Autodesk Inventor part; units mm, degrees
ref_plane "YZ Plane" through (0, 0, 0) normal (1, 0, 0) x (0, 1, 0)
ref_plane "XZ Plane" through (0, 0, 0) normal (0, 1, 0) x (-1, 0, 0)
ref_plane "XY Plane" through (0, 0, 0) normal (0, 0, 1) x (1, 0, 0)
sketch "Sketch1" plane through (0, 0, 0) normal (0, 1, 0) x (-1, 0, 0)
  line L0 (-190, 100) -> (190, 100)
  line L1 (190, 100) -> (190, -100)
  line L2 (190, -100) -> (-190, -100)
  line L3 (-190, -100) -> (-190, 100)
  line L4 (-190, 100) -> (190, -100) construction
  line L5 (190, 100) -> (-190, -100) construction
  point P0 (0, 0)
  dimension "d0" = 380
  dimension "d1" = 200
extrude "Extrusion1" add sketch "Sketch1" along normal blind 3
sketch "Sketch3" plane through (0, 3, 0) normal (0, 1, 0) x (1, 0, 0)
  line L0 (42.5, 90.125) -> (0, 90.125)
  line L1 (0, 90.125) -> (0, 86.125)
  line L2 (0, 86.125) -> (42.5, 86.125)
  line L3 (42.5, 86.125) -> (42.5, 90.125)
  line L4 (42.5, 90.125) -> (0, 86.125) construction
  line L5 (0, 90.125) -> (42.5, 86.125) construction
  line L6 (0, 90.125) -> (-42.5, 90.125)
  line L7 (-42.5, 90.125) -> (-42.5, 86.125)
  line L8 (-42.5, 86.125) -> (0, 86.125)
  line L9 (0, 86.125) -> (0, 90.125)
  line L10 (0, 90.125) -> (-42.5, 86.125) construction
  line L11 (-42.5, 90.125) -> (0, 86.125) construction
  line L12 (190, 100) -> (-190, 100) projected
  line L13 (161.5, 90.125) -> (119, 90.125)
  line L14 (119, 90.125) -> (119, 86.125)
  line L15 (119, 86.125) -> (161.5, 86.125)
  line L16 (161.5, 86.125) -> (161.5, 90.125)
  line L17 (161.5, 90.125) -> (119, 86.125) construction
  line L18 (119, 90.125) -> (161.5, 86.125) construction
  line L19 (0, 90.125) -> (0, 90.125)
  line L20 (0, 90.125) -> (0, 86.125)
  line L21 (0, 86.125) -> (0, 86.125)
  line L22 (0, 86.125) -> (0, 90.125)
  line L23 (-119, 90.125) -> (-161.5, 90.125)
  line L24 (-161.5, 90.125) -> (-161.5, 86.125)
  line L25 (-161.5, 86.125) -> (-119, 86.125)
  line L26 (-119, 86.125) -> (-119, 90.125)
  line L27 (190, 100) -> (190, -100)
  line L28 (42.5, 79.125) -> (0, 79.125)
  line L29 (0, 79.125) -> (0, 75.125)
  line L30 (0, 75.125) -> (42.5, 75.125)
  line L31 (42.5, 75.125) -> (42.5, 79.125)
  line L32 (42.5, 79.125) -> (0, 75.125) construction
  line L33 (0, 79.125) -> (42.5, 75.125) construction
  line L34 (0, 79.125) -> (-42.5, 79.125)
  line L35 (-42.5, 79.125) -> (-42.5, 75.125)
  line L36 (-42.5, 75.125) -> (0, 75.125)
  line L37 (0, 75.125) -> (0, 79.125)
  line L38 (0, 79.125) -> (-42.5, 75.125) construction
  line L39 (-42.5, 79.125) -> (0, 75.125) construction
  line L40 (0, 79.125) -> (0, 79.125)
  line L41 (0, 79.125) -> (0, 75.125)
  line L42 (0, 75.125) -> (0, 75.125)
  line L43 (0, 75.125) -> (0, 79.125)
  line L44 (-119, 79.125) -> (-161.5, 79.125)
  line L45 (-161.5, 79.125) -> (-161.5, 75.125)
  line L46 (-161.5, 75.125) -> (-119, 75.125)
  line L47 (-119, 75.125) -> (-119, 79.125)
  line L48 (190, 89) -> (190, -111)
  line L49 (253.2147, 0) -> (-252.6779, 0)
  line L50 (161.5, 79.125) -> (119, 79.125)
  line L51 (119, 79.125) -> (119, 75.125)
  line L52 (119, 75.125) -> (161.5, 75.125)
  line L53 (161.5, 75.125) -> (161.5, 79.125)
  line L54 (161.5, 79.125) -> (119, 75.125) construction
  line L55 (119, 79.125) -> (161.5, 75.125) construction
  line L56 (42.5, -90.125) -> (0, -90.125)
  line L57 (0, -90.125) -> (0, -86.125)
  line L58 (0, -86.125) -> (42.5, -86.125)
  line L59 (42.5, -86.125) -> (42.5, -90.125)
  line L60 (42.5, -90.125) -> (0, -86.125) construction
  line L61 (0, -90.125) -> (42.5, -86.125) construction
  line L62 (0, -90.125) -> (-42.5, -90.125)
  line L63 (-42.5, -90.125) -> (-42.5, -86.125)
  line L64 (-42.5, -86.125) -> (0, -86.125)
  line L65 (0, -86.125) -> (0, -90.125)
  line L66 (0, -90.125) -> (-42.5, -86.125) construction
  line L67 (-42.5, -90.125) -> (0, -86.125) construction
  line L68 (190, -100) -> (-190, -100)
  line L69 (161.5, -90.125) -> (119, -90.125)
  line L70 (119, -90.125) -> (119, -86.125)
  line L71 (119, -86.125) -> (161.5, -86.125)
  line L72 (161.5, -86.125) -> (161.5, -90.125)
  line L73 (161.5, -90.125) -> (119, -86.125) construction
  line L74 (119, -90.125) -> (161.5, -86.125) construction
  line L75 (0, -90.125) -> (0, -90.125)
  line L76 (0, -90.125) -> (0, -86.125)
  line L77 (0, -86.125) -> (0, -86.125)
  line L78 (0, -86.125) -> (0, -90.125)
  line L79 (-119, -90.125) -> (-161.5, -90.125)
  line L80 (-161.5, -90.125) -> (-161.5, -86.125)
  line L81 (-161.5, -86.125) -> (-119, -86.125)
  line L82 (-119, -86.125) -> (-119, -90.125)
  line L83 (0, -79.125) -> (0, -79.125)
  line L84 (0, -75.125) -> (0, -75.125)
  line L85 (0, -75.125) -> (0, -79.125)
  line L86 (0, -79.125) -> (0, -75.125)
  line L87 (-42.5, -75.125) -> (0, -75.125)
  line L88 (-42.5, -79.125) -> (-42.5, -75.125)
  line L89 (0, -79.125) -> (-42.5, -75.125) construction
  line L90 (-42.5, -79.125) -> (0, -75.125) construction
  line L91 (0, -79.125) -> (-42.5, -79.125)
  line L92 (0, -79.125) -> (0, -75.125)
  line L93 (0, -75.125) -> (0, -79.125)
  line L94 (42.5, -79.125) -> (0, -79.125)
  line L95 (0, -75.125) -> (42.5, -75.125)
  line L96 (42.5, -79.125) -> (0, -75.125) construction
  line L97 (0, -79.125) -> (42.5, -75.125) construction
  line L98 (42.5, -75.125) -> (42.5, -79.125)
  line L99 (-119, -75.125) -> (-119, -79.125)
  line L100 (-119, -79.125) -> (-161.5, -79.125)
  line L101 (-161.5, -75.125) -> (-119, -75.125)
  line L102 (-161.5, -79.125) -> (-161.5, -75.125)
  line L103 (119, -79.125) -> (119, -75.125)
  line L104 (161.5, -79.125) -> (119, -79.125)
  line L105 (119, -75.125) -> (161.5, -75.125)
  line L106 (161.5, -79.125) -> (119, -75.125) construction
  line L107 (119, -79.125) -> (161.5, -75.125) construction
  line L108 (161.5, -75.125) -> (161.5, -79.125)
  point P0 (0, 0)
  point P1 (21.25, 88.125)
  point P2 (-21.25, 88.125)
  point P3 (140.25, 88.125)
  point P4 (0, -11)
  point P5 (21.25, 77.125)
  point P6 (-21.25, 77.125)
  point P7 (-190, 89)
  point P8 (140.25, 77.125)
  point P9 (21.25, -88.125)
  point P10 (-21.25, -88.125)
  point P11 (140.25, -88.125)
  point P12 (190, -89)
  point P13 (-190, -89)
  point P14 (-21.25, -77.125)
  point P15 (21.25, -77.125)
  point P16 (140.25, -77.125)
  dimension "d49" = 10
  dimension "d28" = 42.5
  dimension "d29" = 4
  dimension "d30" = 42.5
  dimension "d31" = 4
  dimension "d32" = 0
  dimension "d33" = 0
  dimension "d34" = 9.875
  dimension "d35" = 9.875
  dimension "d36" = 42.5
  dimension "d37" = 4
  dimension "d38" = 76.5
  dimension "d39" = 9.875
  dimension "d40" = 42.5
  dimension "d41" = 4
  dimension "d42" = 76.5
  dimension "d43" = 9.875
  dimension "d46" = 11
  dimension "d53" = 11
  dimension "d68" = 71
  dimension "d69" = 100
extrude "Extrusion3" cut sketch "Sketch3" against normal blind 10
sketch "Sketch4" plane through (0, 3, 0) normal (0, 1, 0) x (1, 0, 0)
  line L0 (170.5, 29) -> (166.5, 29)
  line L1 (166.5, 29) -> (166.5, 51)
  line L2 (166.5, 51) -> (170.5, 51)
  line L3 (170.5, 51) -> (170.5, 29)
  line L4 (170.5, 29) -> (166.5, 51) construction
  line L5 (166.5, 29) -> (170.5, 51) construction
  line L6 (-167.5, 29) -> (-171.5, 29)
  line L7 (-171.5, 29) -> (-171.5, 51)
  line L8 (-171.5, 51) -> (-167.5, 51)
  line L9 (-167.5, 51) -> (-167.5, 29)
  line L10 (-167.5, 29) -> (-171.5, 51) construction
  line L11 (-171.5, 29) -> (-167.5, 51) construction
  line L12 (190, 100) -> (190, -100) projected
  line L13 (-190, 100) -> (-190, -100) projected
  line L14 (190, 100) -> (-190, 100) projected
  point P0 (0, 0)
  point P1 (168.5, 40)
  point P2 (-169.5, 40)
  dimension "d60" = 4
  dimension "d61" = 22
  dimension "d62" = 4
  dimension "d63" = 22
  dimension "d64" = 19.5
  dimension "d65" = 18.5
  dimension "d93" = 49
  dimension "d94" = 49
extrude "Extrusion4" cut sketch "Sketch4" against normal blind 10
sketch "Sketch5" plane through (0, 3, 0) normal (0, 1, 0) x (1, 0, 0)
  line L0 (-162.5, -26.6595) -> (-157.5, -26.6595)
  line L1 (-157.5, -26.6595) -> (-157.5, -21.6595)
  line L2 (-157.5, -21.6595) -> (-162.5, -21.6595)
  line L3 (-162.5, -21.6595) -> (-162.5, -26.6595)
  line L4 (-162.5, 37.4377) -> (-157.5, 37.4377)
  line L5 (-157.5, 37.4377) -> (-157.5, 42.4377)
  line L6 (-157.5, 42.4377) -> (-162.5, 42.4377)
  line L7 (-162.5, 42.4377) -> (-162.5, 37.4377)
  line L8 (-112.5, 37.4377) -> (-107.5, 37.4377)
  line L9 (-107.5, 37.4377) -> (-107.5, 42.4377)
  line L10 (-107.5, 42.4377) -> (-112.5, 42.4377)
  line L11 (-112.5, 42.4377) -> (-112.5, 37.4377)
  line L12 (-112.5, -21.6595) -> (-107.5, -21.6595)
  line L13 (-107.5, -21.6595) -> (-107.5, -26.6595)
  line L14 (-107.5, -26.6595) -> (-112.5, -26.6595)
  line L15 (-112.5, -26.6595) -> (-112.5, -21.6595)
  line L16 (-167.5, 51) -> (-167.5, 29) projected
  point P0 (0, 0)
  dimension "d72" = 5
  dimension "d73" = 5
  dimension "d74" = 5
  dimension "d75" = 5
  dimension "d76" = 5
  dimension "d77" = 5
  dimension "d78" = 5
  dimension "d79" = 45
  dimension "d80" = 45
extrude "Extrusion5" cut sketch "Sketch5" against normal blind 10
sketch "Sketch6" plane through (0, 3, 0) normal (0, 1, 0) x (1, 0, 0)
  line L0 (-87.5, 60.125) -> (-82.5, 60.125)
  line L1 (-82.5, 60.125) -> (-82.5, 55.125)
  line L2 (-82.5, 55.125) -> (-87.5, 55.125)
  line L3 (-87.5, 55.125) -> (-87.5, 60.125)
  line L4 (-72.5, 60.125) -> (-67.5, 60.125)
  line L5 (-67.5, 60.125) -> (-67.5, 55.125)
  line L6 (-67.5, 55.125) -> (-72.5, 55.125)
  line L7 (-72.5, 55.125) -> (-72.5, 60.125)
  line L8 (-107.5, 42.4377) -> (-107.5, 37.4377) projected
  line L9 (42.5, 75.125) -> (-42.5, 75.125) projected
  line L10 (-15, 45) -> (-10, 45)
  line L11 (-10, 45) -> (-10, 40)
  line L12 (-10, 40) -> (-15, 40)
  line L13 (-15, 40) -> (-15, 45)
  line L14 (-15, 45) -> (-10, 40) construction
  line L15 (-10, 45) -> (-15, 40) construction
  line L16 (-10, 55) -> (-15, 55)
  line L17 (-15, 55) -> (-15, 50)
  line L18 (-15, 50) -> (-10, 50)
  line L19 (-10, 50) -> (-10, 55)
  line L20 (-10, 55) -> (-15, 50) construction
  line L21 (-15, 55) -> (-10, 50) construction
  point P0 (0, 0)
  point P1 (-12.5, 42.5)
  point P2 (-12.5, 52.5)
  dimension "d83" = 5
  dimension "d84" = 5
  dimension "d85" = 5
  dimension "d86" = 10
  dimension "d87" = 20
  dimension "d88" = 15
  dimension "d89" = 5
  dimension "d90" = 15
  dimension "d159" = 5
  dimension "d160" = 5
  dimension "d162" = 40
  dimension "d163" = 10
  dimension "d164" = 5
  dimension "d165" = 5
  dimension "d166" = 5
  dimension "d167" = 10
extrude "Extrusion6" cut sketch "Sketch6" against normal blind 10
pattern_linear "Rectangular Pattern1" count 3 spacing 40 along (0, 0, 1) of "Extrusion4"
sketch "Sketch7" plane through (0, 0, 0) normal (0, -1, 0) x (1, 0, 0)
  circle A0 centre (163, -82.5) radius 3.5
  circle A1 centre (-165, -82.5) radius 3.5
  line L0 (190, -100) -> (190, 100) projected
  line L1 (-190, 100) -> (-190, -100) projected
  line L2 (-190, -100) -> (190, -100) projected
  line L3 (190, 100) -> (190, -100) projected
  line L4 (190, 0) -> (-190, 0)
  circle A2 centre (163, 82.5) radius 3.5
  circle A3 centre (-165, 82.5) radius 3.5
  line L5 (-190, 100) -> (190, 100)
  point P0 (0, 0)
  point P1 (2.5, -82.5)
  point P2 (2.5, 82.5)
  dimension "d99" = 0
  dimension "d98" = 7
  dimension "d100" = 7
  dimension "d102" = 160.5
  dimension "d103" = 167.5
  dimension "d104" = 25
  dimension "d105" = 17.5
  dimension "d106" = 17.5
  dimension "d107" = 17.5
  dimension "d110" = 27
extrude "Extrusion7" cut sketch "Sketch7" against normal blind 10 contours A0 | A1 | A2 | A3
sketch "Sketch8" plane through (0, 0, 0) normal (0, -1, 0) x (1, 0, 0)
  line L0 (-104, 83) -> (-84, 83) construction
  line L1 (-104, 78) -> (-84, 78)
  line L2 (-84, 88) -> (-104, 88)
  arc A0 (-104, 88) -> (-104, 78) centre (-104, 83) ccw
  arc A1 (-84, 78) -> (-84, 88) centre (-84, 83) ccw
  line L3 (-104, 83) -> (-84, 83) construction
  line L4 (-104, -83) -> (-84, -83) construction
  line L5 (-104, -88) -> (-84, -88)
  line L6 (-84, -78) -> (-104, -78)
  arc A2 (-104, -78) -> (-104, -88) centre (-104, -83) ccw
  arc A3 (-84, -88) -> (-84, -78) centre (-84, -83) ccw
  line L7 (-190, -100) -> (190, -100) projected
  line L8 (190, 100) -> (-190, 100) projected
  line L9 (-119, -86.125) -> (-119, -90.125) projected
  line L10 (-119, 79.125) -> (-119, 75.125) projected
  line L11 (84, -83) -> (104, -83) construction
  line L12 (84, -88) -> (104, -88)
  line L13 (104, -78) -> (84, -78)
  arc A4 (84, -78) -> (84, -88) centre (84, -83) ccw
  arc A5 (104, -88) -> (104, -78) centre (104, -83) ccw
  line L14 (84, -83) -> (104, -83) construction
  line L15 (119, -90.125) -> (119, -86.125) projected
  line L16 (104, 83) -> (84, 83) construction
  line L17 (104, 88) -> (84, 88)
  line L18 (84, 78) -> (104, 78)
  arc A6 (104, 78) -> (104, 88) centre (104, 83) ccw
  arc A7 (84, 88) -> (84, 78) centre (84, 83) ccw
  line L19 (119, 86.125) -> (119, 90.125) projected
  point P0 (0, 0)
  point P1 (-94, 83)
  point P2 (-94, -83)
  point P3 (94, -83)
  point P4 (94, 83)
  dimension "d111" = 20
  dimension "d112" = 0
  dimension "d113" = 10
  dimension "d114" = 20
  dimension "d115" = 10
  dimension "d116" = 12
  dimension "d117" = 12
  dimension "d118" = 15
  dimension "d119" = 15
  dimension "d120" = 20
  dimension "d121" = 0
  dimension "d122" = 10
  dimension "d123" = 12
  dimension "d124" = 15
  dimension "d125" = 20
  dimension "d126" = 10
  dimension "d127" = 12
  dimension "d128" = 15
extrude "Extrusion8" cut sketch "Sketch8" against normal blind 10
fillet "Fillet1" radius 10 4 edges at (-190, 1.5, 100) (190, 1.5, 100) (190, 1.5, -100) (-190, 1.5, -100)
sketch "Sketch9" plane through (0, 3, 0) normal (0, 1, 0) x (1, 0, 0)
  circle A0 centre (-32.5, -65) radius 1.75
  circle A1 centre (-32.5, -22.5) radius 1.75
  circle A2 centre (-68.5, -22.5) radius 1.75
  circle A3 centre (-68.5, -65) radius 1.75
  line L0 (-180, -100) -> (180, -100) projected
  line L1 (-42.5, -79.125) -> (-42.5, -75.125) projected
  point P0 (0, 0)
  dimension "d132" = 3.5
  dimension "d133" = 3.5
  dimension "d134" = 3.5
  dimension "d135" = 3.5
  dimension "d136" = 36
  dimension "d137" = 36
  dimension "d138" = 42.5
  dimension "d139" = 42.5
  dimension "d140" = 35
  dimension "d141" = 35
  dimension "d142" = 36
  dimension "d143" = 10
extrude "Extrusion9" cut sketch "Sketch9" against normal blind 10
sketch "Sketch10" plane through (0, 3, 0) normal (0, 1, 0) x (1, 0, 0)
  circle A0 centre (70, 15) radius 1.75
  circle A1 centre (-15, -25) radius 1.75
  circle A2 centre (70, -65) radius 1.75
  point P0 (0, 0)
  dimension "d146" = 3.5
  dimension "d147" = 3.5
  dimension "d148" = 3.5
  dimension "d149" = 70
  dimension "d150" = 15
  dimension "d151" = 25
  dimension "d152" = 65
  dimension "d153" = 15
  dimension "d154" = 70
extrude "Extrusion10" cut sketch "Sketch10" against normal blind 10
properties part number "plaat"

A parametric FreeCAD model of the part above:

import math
import FreeCAD as App
import Part
import Sketcher

V = App.Vector


def edges_at(feature, points):
    """Names of the edges that pass closest to the given points."""
    edges = feature.Shape.Edges
    near = lambda p: min(range(len(edges)), key=lambda i: edges[i].distToShape(Part.Vertex(*p))[0])
    return sorted({f"Edge{near(p) + 1}" for p in points})


def add_polygon(sketch, points):
    """Adds a closed chain of lines whose ends are joined by coincident constraints."""
    first, n = sketch.GeometryCount, len(points)
    for a, b in zip(points, points[1:] + points[:1]):
        sketch.addGeometry(Part.LineSegment(App.Vector(*a, 0), App.Vector(*b, 0)), False)
    for i in range(n):
        sketch.addConstraint(Sketcher.Constraint("Coincident", first + i, 2, first + (i + 1) % n, 1))

doc = App.newDocument("Part")
params = doc.addObject("Spreadsheet::Sheet", "Params")
for row, (alias, value) in enumerate([
    ("sketch1_width", "380 mm"),
    ("sketch1_height", "200 mm"),
    ("pad1_length", "3 mm"),
    ("sketch2_height", "4 mm"),
    ("sketch2_width", "42.5 mm"),
    ("pocket1_length", "10 mm"),
    ("sketch3_width", "4 mm"),
    ("sketch3_height", "22 mm"),
    ("pocket2_length", "10 mm"),
    ("sketch4_width", "5 mm"),
    ("pocket3_length", "10 mm"),
    ("sketch5_width", "5 mm"),
    ("pocket4_length", "10 mm"),
    ("linearpattern_pitch", "40 mm"),
    ("sketch6_diameter", "7 mm"),
    ("pocket5_length", "10 mm"),
    ("sketch7_radius", "5 mm"),
    ("sketch7_width", "20 mm"),
    ("pocket6_length", "10 mm"),
    ("fillet_radius", "10 mm"),
    ("sketch8_diameter", "3.5 mm"),
    ("pocket7_length", "10 mm"),
    ("sketch9_diameter", "3.5 mm"),
    ("pocket8_length", "10 mm"),
], start=1):
    params.set(f"A{row}", alias)
    params.set(f"B{row}", "=" + value)
    params.setAlias(f"B{row}", alias)

body = doc.addObject("PartDesign::Body", "Body")

# Sketch on XZ plane
sketch1 = doc.addObject("Sketcher::SketchObject", "Sketch")
body.addObject(sketch1)
sketch1.AttachmentSupport = (doc.XZ_Plane, [""])
sketch1.MapMode = "FlatFace"
add_polygon(sketch1, [(-190, 100), (190, 100), (190, -100), (-190, -100)])  # lines 0-3
sketch1.addConstraint(Sketcher.Constraint("Horizontal", 0))
sketch1.addConstraint(Sketcher.Constraint("Vertical", 1))
sketch1.addConstraint(Sketcher.Constraint("Horizontal", 2))
sketch1.addConstraint(Sketcher.Constraint("Vertical", 3))
sketch1.addConstraint(Sketcher.Constraint("Symmetric", 0, 2, 2, 2, -1, 1))
sketch1.addConstraint(Sketcher.Constraint("DistanceX", 0, 1, 0, 2, 380.0))
sketch1.addConstraint(Sketcher.Constraint("DistanceY", 1, 2, 1, 1, 200.0))
sketch1.setExpression("Constraints[9]", "Params.sketch1_width")
sketch1.setExpression("Constraints[10]", "Params.sketch1_height")
pad1 = doc.addObject("PartDesign::Pad", "Pad")
body.addObject(pad1)
pad1.Profile = sketch1
pad1.setExpression("Length", "Params.pad1_length")
pad1.Reversed = True

# Sketch on XZ plane
sketch2 = doc.addObject("Sketcher::SketchObject", "Sketch001")
body.addObject(sketch2)
sketch2.AttachmentSupport = (doc.XZ_Plane, [""])
sketch2.MapMode = "FlatFace"
sketch2.AttachmentOffset = App.Placement(V(0, 0, -3), App.Rotation())
add_polygon(sketch2, [(42.5, -86.1), (42.5, -90.1), (-42.5, -90.1), (-42.5, -86.1)])  # lines 0-3
add_polygon(sketch2, [(161.5, -86.1), (161.5, -90.1), (119, -90.1), (119, -86.1)])  # lines 4-7
add_polygon(sketch2, [(-119, -86.1), (-119, -90.1), (-161.5, -90.1), (-161.5, -86.1)])  # lines 8-11
add_polygon(sketch2, [(42.5, -75.1), (42.5, -79.1), (-42.5, -79.1), (-42.5, -75.1)])  # lines 12-15
add_polygon(sketch2, [(-119, -75.1), (-119, -79.1), (-161.5, -79.1), (-161.5, -75.1)])  # lines 16-19
add_polygon(sketch2, [(161.5, -75.1), (161.5, -79.1), (119, -79.1), (119, -75.1)])  # lines 20-23
add_polygon(sketch2, [(42.5, 90.1), (42.5, 86.1), (-42.5, 86.1), (-42.5, 90.1)])  # lines 24-27
add_polygon(sketch2, [(119, 90.1), (161.5, 90.1), (161.5, 86.1), (119, 86.1)])  # lines 28-31
add_polygon(sketch2, [(-161.5, 90.1), (-119, 90.1), (-119, 86.1), (-161.5, 86.1)])  # lines 32-35
add_polygon(sketch2, [(42.5, 75.1), (-42.5, 75.1), (-42.5, 79.1), (42.5, 79.1)])  # lines 36-39
add_polygon(sketch2, [(-119, 79.1), (-119, 75.1), (-161.5, 75.1), (-161.5, 79.1)])  # lines 40-43
add_polygon(sketch2, [(119, 75.1), (119, 79.1), (161.5, 79.1), (161.5, 75.1)])  # lines 44-47
sketch2.addConstraint(Sketcher.Constraint("Vertical", 0))
sketch2.addConstraint(Sketcher.Constraint("Horizontal", 1))
sketch2.addConstraint(Sketcher.Constraint("Vertical", 2))
sketch2.addConstraint(Sketcher.Constraint("Horizontal", 3))
sketch2.addConstraint(Sketcher.Constraint("Vertical", 4))
sketch2.addConstraint(Sketcher.Constraint("Horizontal", 5))
sketch2.addConstraint(Sketcher.Constraint("Vertical", 6))
sketch2.addConstraint(Sketcher.Constraint("Horizontal", 7))
sketch2.addConstraint(Sketcher.Constraint("Vertical", 8))
sketch2.addConstraint(Sketcher.Constraint("Horizontal", 9))
sketch2.addConstraint(Sketcher.Constraint("Vertical", 10))
sketch2.addConstraint(Sketcher.Constraint("Horizontal", 11))
sketch2.addConstraint(Sketcher.Constraint("Vertical", 12))
sketch2.addConstraint(Sketcher.Constraint("Horizontal", 13))
sketch2.addConstraint(Sketcher.Constraint("Vertical", 14))
sketch2.addConstraint(Sketcher.Constraint("Horizontal", 15))
sketch2.addConstraint(Sketcher.Constraint("Vertical", 16))
sketch2.addConstraint(Sketcher.Constraint("Horizontal", 17))
sketch2.addConstraint(Sketcher.Constraint("Vertical", 18))
sketch2.addConstraint(Sketcher.Constraint("Horizontal", 19))
sketch2.addConstraint(Sketcher.Constraint("Vertical", 20))
sketch2.addConstraint(Sketcher.Constraint("Horizontal", 21))
sketch2.addConstraint(Sketcher.Constraint("Vertical", 22))
sketch2.addConstraint(Sketcher.Constraint("Horizontal", 23))
sketch2.addConstraint(Sketcher.Constraint("Vertical", 24))
sketch2.addConstraint(Sketcher.Constraint("Horizontal", 25))
sketch2.addConstraint(Sketcher.Constraint("Vertical", 26))
sketch2.addConstraint(Sketcher.Constraint("Horizontal", 27))
sketch2.addConstraint(Sketcher.Constraint("Horizontal", 28))
sketch2.addConstraint(Sketcher.Constraint("Vertical", 29))
sketch2.addConstraint(Sketcher.Constraint("Horizontal", 30))
sketch2.addConstraint(Sketcher.Constraint("Vertical", 31))
sketch2.addConstraint(Sketcher.Constraint("Horizontal", 32))
sketch2.addConstraint(Sketcher.Constraint("Vertical", 33))
sketch2.addConstraint(Sketcher.Constraint("Horizontal", 34))
sketch2.addConstraint(Sketcher.Constraint("Vertical", 35))
sketch2.addConstraint(Sketcher.Constraint("Horizontal", 36))
sketch2.addConstraint(Sketcher.Constraint("Vertical", 37))
sketch2.addConstraint(Sketcher.Constraint("Horizontal", 38))
sketch2.addConstraint(Sketcher.Constraint("Vertical", 39))
sketch2.addConstraint(Sketcher.Constraint("Vertical", 40))
sketch2.addConstraint(Sketcher.Constraint("Horizontal", 41))
sketch2.addConstraint(Sketcher.Constraint("Vertical", 42))
sketch2.addConstraint(Sketcher.Constraint("Horizontal", 43))
sketch2.addConstraint(Sketcher.Constraint("Vertical", 44))
sketch2.addConstraint(Sketcher.Constraint("Horizontal", 45))
sketch2.addConstraint(Sketcher.Constraint("Vertical", 46))
sketch2.addConstraint(Sketcher.Constraint("Horizontal", 47))
sketch2.addConstraint(Sketcher.Constraint("Symmetric", 2, 2, 24, 2, -1, 1))
sketch2.addConstraint(Sketcher.Constraint("Symmetric", 0, 2, 26, 2, -1, 1))
sketch2.addConstraint(Sketcher.Constraint("Symmetric", 9, 2, 28, 2, -1, 1))
sketch2.addConstraint(Sketcher.Constraint("Symmetric", 11, 2, 30, 2, -1, 1))
sketch2.addConstraint(Sketcher.Constraint("Symmetric", 5, 2, 32, 2, -1, 1))
sketch2.addConstraint(Sketcher.Constraint("Symmetric", 7, 2, 34, 2, -1, 1))
sketch2.addConstraint(Sketcher.Constraint("Symmetric", 15, 2, 36, 2, -1, 1))
sketch2.addConstraint(Sketcher.Constraint("Symmetric", 13, 2, 38, 2, -1, 1))
sketch2.addConstraint(Sketcher.Constraint("Symmetric", 22, 2, 40, 2, -1, 1))
sketch2.addConstraint(Sketcher.Constraint("Symmetric", 20, 2, 42, 2, -1, 1))
sketch2.addConstraint(Sketcher.Constraint("Symmetric", 16, 2, 44, 2, -1, 1))
sketch2.addConstraint(Sketcher.Constraint("Symmetric", 18, 2, 46, 2, -1, 1))
sketch2.addConstraint(Sketcher.Constraint("Symmetric", 5, 2, 8, 2, -2))
sketch2.addConstraint(Sketcher.Constraint("Symmetric", 7, 2, 10, 2, -2))
sketch2.addConstraint(Sketcher.Constraint("Symmetric", 17, 2, 20, 2, -2))
sketch2.addConstraint(Sketcher.Constraint("Symmetric", 19, 2, 22, 2, -2))
sketch2.addConstraint(Sketcher.Constraint("Horizontal", 1, 2, 4, 2))
sketch2.addConstraint(Sketcher.Constraint("Horizontal", 3, 2, 6, 2))
sketch2.addConstraint(Sketcher.Constraint("Horizontal", 13, 2, 16, 2))
sketch2.addConstraint(Sketcher.Constraint("Horizontal", 15, 2, 18, 2))
sketch2.addConstraint(Sketcher.Constraint("Vertical", 3, 2, 12, 2))
sketch2.addConstraint(Sketcher.Constraint("Vertical", 2, 2, 13, 2))
sketch2.addConstraint(Sketcher.Constraint("Vertical", 11, 2, 16, 2))
sketch2.addConstraint(Sketcher.Constraint("Vertical", 10, 2, 17, 2))
sketch2.addConstraint(Sketcher.Constraint("Vertical", 15, 2, 24, 2))
sketch2.addConstraint(Sketcher.Constraint("Equal", 10, 12))
sketch2.addConstraint(Sketcher.Constraint("DistanceY", 0, 2, 0, 1, 4.0))
sketch2.addConstraint(Sketcher.Constraint("DistanceX", 5, 2, 5, 1, 42.5))
sketch2.addConstraint(Sketcher.Constraint("DistanceY", 0, 2, 12, 2, 11.0))
sketch2.addConstraint(Sketcher.Constraint("DistanceX", -1, 1, 0, 2, 42.5))
sketch2.addConstraint(Sketcher.Constraint("DistanceX", 0, 2, 5, 2, 76.5))
sketch2.addConstraint(Sketcher.Constraint("DistanceY", 15, 2, 24, 2, 161.25))
sketch2.setExpression("Constraints[122]", "Params.sketch2_height")
sketch2.setExpression("Constraints[123]", "Params.sketch2_width")
pocket1 = doc.addObject("PartDesign::Pocket", "Pocket")
body.addObject(pocket1)
pocket1.Profile = sketch2
pocket1.setExpression("Length", "Params.pocket1_length")
pocket1.Reversed = True

# Sketch on XZ plane
sketch3 = doc.addObject("Sketcher::SketchObject", "Sketch002")
body.addObject(sketch3)
sketch3.AttachmentSupport = (doc.XZ_Plane, [""])
sketch3.MapMode = "FlatFace"
sketch3.AttachmentOffset = App.Placement(V(0, 0, -3), App.Rotation())
add_polygon(sketch3, [(166.5, -29), (170.5, -29), (170.5, -51), (166.5, -51)])  # lines 0-3
add_polygon(sketch3, [(-171.5, -29), (-167.5, -29), (-167.5, -51), (-171.5, -51)])  # lines 4-7
sketch3.addConstraint(Sketcher.Constraint("Horizontal", 0))
sketch3.addConstraint(Sketcher.Constraint("Vertical", 1))
sketch3.addConstraint(Sketcher.Constraint("Horizontal", 2))
sketch3.addConstraint(Sketcher.Constraint("Vertical", 3))
sketch3.addConstraint(Sketcher.Constraint("Horizontal", 4))
sketch3.addConstraint(Sketcher.Constraint("Vertical", 5))
sketch3.addConstraint(Sketcher.Constraint("Horizontal", 6))
sketch3.addConstraint(Sketcher.Constraint("Vertical", 7))
sketch3.addConstraint(Sketcher.Constraint("Horizontal", 3, 2, 4, 2))
sketch3.addConstraint(Sketcher.Constraint("Horizontal", 2, 2, 5, 2))
sketch3.addConstraint(Sketcher.Constraint("Equal", 2, 4))
sketch3.addConstraint(Sketcher.Constraint("DistanceX", 0, 1, 0, 2, 4.0))
sketch3.addConstraint(Sketcher.Constraint("DistanceY", 1, 2, 1, 1, 22.0))
sketch3.addConstraint(Sketcher.Constraint("DistanceY", 0, 2, -1, 1, 29.0))
sketch3.addConstraint(Sketcher.Constraint("DistanceX", 4, 2, 3, 2, 334.0))
sketch3.addConstraint(Sketcher.Constraint("DistanceX", -1, 1, 0, 2, 170.5))
sketch3.setExpression("Constraints[19]", "Params.sketch3_width")
sketch3.setExpression("Constraints[20]", "Params.sketch3_height")
pocket2 = doc.addObject("PartDesign::Pocket", "Pocket001")
body.addObject(pocket2)
pocket2.Profile = sketch3
pocket2.setExpression("Length", "Params.pocket2_length")
pocket2.Reversed = True

# Sketch on XZ plane
sketch4 = doc.addObject("Sketcher::SketchObject", "Sketch003")
body.addObject(sketch4)
sketch4.AttachmentSupport = (doc.XZ_Plane, [""])
sketch4.MapMode = "FlatFace"
sketch4.AttachmentOffset = App.Placement(V(0, 0, -3), App.Rotation())
add_polygon(sketch4, [(-162, 22), (-162, 27), (-158, 27), (-158, 22)])  # lines 0-3
add_polygon(sketch4, [(-162, -42), (-162, -37), (-158, -37), (-158, -42)])  # lines 4-7
add_polygon(sketch4, [(-112, -42), (-112, -37), (-108, -37), (-108, -42)])  # lines 8-11
add_polygon(sketch4, [(-108, 22), (-112, 22), (-112, 27), (-108, 27)])  # lines 12-15
sketch4.addConstraint(Sketcher.Constraint("Vertical", 0))
sketch4.addConstraint(Sketcher.Constraint("Horizontal", 1))
sketch4.addConstraint(Sketcher.Constraint("Vertical", 2))
sketch4.addConstraint(Sketcher.Constraint("Horizontal", 3))
sketch4.addConstraint(Sketcher.Constraint("Vertical", 4))
sketch4.addConstraint(Sketcher.Constraint("Horizontal", 5))
sketch4.addConstraint(Sketcher.Constraint("Vertical", 6))
sketch4.addConstraint(Sketcher.Constraint("Horizontal", 7))
sketch4.addConstraint(Sketcher.Constraint("Vertical", 8))
sketch4.addConstraint(Sketcher.Constraint("Horizontal", 9))
sketch4.addConstraint(Sketcher.Constraint("Vertical", 10))
sketch4.addConstraint(Sketcher.Constraint("Horizontal", 11))
sketch4.addConstraint(Sketcher.Constraint("Horizontal", 12))
sketch4.addConstraint(Sketcher.Constraint("Vertical", 13))
sketch4.addConstraint(Sketcher.Constraint("Horizontal", 14))
sketch4.addConstraint(Sketcher.Constraint("Vertical", 15))
sketch4.addConstraint(Sketcher.Constraint("Horizontal", 5, 2, 8, 2))
sketch4.addConstraint(Sketcher.Constraint("Horizontal", 7, 2, 10, 2))
sketch4.addConstraint(Sketcher.Constraint("Horizontal", 3, 2, 12, 2))
sketch4.addConstraint(Sketcher.Constraint("Horizontal", 1, 2, 13, 2))
sketch4.addConstraint(Sketcher.Constraint("Vertical", 3, 2, 4, 2))
sketch4.addConstraint(Sketcher.Constraint("Vertical", 2, 2, 5, 2))
sketch4.addConstraint(Sketcher.Constraint("Vertical", 11, 2, 12, 2))
sketch4.addConstraint(Sketcher.Constraint("Vertical", 10, 2, 14, 2))
sketch4.addConstraint(Sketcher.Constraint("Equal", 7, 9))
sketch4.addConstraint(Sketcher.Constraint("Equal", 14, 0))
sketch4.addConstraint(Sketcher.Constraint("Equal", 2, 4))
sketch4.addConstraint(Sketcher.Constraint("DistanceX", 1, 1, 1, 2, 5.0))
sketch4.addConstraint(Sketcher.Constraint("DistanceX", 5, 2, 8, 2, 45.0))
sketch4.addConstraint(Sketcher.Constraint("DistanceX", 0, 2, -1, 1, 162.5))
sketch4.addConstraint(Sketcher.Constraint("DistanceY", -1, 1, 0, 2, 26.6595))
sketch4.addConstraint(Sketcher.Constraint("DistanceY", 4, 2, -1, 1, 37.4377))
sketch4.setExpression("Constraints[43]", "Params.sketch4_width")
pocket3 = doc.addObject("PartDesign::Pocket", "Pocket002")
body.addObject(pocket3)
pocket3.Profile = sketch4
pocket3.setExpression("Length", "Params.pocket3_length")
pocket3.Reversed = True

# Sketch on XZ plane
sketch5 = doc.addObject("Sketcher::SketchObject", "Sketch004")
body.addObject(sketch5)
sketch5.AttachmentSupport = (doc.XZ_Plane, [""])
sketch5.MapMode = "FlatFace"
sketch5.AttachmentOffset = App.Placement(V(0, 0, -3), App.Rotation())
add_polygon(sketch5, [(-82, -60), (-88, -60), (-88, -55), (-82, -55)])  # lines 0-3
add_polygon(sketch5, [(-68, -60), (-72, -60), (-72, -55), (-68, -55)])  # lines 4-7
add_polygon(sketch5, [(-10, -45), (-15, -45), (-15, -40), (-10, -40)])  # lines 8-11
add_polygon(sketch5, [(-10, -50), (-10, -55), (-15, -55), (-15, -50)])  # lines 12-15
sketch5.addConstraint(Sketcher.Constraint("Horizontal", 0))
sketch5.addConstraint(Sketcher.Constraint("Vertical", 1))
sketch5.addConstraint(Sketcher.Constraint("Horizontal", 2))
sketch5.addConstraint(Sketcher.Constraint("Vertical", 3))
sketch5.addConstraint(Sketcher.Constraint("Horizontal", 4))
sketch5.addConstraint(Sketcher.Constraint("Vertical", 5))
sketch5.addConstraint(Sketcher.Constraint("Horizontal", 6))
sketch5.addConstraint(Sketcher.Constraint("Vertical", 7))
sketch5.addConstraint(Sketcher.Constraint("Horizontal", 8))
sketch5.addConstraint(Sketcher.Constraint("Vertical", 9))
sketch5.addConstraint(Sketcher.Constraint("Horizontal", 10))
sketch5.addConstraint(Sketcher.Constraint("Vertical", 11))
sketch5.addConstraint(Sketcher.Constraint("Vertical", 12))
sketch5.addConstraint(Sketcher.Constraint("Horizontal", 13))
sketch5.addConstraint(Sketcher.Constraint("Vertical", 14))
sketch5.addConstraint(Sketcher.Constraint("Horizontal", 15))
sketch5.addConstraint(Sketcher.Constraint("Horizontal", 3, 2, 4, 2))
sketch5.addConstraint(Sketcher.Constraint("Horizontal", 2, 2, 5, 2))
sketch5.addConstraint(Sketcher.Constraint("Vertical", 11, 2, 12, 2))
sketch5.addConstraint(Sketcher.Constraint("Vertical", 9, 2, 13, 2))
sketch5.addConstraint(Sketcher.Constraint("Equal", 2, 4))
sketch5.addConstraint(Sketcher.Constraint("Equal", 6, 8))
sketch5.addConstraint(Sketcher.Constraint("Equal", 15, 1))
sketch5.addConstraint(Sketcher.Constraint("Equal", 7, 9))
sketch5.addConstraint(Sketcher.Constraint("Equal", 11, 12))
sketch5.addConstraint(Sketcher.Constraint("DistanceX", 0, 2, 0, 1, 5.0))
sketch5.addConstraint(Sketcher.Constraint("DistanceX", 8, 2, -1, 1, 15.0))
sketch5.addConstraint(Sketcher.Constraint("DistanceY", 9, 2, -1, 1, 40.0))
sketch5.addConstraint(Sketcher.Constraint("DistanceX", 3, 2, 4, 2, 10.0))
sketch5.addConstraint(Sketcher.Constraint("DistanceY", 12, 2, 11, 2, 10.0))
sketch5.addConstraint(Sketcher.Constraint("DistanceX", 0, 2, -1, 1, 87.5))
sketch5.addConstraint(Sketcher.Constraint("DistanceY", 0, 2, -1, 1, 60.125))
sketch5.setExpression("Constraints[41]", "Params.sketch5_width")
pocket4 = doc.addObject("PartDesign::Pocket", "Pocket003")
body.addObject(pocket4)
pocket4.Profile = sketch5
pocket4.setExpression("Length", "Params.pocket4_length")
pocket4.Reversed = True
doc.recompute()

linearpattern = doc.addObject("PartDesign::LinearPattern", "LinearPattern")
body.addObject(linearpattern)
linearpattern.Originals = [pocket2]
linearpattern.Direction = (doc.Z_Axis, [""])
linearpattern.Mode = "offset"
linearpattern.setExpression("Offset", "Params.linearpattern_pitch")
linearpattern.Occurrences = 3
body.Tip = linearpattern

# Sketch on XZ plane
sketch6 = doc.addObject("Sketcher::SketchObject", "Sketch005")
body.addObject(sketch6)
sketch6.AttachmentSupport = (doc.XZ_Plane, [""])
sketch6.MapMode = "FlatFace"
sketch6.addGeometry(Part.Circle(V(163, -82.5, 0), V(0, 0, 1), 3.5), False)
sketch6.addGeometry(Part.Circle(V(-165, -82.5, 0), V(0, 0, 1), 3.5), False)
sketch6.addGeometry(Part.Circle(V(163, 82.5, 0), V(0, 0, 1), 3.5), False)
sketch6.addGeometry(Part.Circle(V(-165, 82.5, 0), V(0, 0, 1), 3.5), False)
sketch6.addConstraint(Sketcher.Constraint("Equal", 0, 1))
sketch6.addConstraint(Sketcher.Constraint("Equal", 1, 2))
sketch6.addConstraint(Sketcher.Constraint("Equal", 2, 3))
sketch6.addConstraint(Sketcher.Constraint("Symmetric", 0, 3, 2, 3, -1))
sketch6.addConstraint(Sketcher.Constraint("Symmetric", 1, 3, 3, 3, -1))
sketch6.addConstraint(Sketcher.Constraint("Horizontal", 0, 3, 1, 3))
sketch6.addConstraint(Sketcher.Constraint("Diameter", 0, 7.0))
sketch6.addConstraint(Sketcher.Constraint("DistanceX", -1, 1, 0, 3, 163.0))
sketch6.addConstraint(Sketcher.Constraint("DistanceX", 1, 3, -1, 1, 165.0))
sketch6.addConstraint(Sketcher.Constraint("DistanceY", 0, 3, 2, 3, 165.0))
sketch6.setExpression("Constraints[6]", "Params.sketch6_diameter")
pocket5 = doc.addObject("PartDesign::Pocket", "Pocket004")
body.addObject(pocket5)
pocket5.Profile = sketch6
pocket5.setExpression("Length", "Params.pocket5_length")

# Sketch on XZ plane
sketch7 = doc.addObject("Sketcher::SketchObject", "Sketch006")
body.addObject(sketch7)
sketch7.AttachmentSupport = (doc.XZ_Plane, [""])
sketch7.MapMode = "FlatFace"
sketch7.addGeometry(Part.ArcOfCircle(Part.Circle(V(-104, 83, 0), V(0, 0, 1), 5), math.radians(90), math.radians(270)), False)
sketch7.addGeometry(Part.LineSegment(V(-104, 78, 0), V(-84, 78, 0)), False)
sketch7.addGeometry(Part.ArcOfCircle(Part.Circle(V(-84, 83, 0), V(0, 0, 1), 5), math.radians(-90), math.radians(90)), False)
sketch7.addGeometry(Part.LineSegment(V(-84, 88, 0), V(-104, 88, 0)), False)
sketch7.addGeometry(Part.ArcOfCircle(Part.Circle(V(-104, -83, 0), V(0, 0, 1), 5), math.radians(90), math.radians(270)), False)
sketch7.addGeometry(Part.LineSegment(V(-104, -88, 0), V(-84, -88, 0)), False)
sketch7.addGeometry(Part.ArcOfCircle(Part.Circle(V(-84, -83, 0), V(0, 0, 1), 5), math.radians(-90), math.radians(90)), False)
sketch7.addGeometry(Part.LineSegment(V(-84, -78, 0), V(-104, -78, 0)), False)
sketch7.addGeometry(Part.ArcOfCircle(Part.Circle(V(84, -83, 0), V(0, 0, 1), 5), math.radians(90), math.radians(270)), False)
sketch7.addGeometry(Part.LineSegment(V(84, -88, 0), V(104, -88, 0)), False)
sketch7.addGeometry(Part.ArcOfCircle(Part.Circle(V(104, -83, 0), V(0, 0, 1), 5), math.radians(-90), math.radians(90)), False)
sketch7.addGeometry(Part.LineSegment(V(104, -78, 0), V(84, -78, 0)), False)
sketch7.addGeometry(Part.ArcOfCircle(Part.Circle(V(104, 83, 0), V(0, 0, 1), 5), math.radians(-90), math.radians(90)), False)
sketch7.addGeometry(Part.LineSegment(V(104, 88, 0), V(84, 88, 0)), False)
sketch7.addGeometry(Part.ArcOfCircle(Part.Circle(V(84, 83, 0), V(0, 0, 1), 5), math.radians(90), math.radians(270)), False)
sketch7.addGeometry(Part.LineSegment(V(84, 78, 0), V(104, 78, 0)), False)
sketch7.addConstraint(Sketcher.Constraint("Tangent", 0, 2, 1, 1))
sketch7.addConstraint(Sketcher.Constraint("Tangent", 1, 2, 2, 1))
sketch7.addConstraint(Sketcher.Constraint("Tangent", 2, 2, 3, 1))
sketch7.addConstraint(Sketcher.Constraint("Tangent", 3, 2, 0, 1))
sketch7.addConstraint(Sketcher.Constraint("Tangent", 4, 2, 5, 1))
sketch7.addConstraint(Sketcher.Constraint("Tangent", 5, 2, 6, 1))
sketch7.addConstraint(Sketcher.Constraint("Tangent", 6, 2, 7, 1))
sketch7.addConstraint(Sketcher.Constraint("Tangent", 7, 2, 4, 1))
sketch7.addConstraint(Sketcher.Constraint("Tangent", 8, 2, 9, 1))
sketch7.addConstraint(Sketcher.Constraint("Tangent", 9, 2, 10, 1))
sketch7.addConstraint(Sketcher.Constraint("Tangent", 10, 2, 11, 1))
sketch7.addConstraint(Sketcher.Constraint("Tangent", 11, 2, 8, 1))
sketch7.addConstraint(Sketcher.Constraint("Tangent", 12, 2, 13, 1))
sketch7.addConstraint(Sketcher.Constraint("Tangent", 13, 2, 14, 1))
sketch7.addConstraint(Sketcher.Constraint("Tangent", 14, 2, 15, 1))
sketch7.addConstraint(Sketcher.Constraint("Tangent", 15, 2, 12, 1))
sketch7.addConstraint(Sketcher.Constraint("Horizontal", 1))
sketch7.addConstraint(Sketcher.Constraint("Horizontal", 3))
sketch7.addConstraint(Sketcher.Constraint("Horizontal", 5))
sketch7.addConstraint(Sketcher.Constraint("Horizontal", 7))
sketch7.addConstraint(Sketcher.Constraint("Horizontal", 9))
sketch7.addConstraint(Sketcher.Constraint("Horizontal", 11))
sketch7.addConstraint(Sketcher.Constraint("Horizontal", 13))
sketch7.addConstraint(Sketcher.Constraint("Horizontal", 15))
sketch7.addConstraint(Sketcher.Constraint("Equal", 2, 4))
sketch7.addConstraint(Sketcher.Constraint("Equal", 6, 8))
sketch7.addConstraint(Sketcher.Constraint("Equal", 10, 12))
sketch7.addConstraint(Sketcher.Constraint("Symmetric", 2, 3, 8, 3, -1, 1))
sketch7.addConstraint(Sketcher.Constraint("Symmetric", 4, 3, 12, 3, -1, 1))
sketch7.addConstraint(Sketcher.Constraint("Symmetric", 6, 3, 8, 3, -2))
sketch7.addConstraint(Sketcher.Constraint("Vertical", 0, 3, 4, 3))
sketch7.addConstraint(Sketcher.Constraint("Vertical", 10, 3, 12, 3))
sketch7.addConstraint(Sketcher.Constraint("Vertical", 8, 3, 14, 3))
sketch7.addConstraint(Sketcher.Constraint("Radius", 0, 5.0))
sketch7.addConstraint(Sketcher.Constraint("DistanceX", 1, 1, 1, 2, 20.0))
sketch7.addConstraint(Sketcher.Constraint("DistanceX", 0, 3, -1, 1, 104.0))
sketch7.addConstraint(Sketcher.Constraint("DistanceY", -1, 1, 0, 3, 83.0))
sketch7.setExpression("Constraints[33]", "Params.sketch7_radius")
sketch7.setExpression("Constraints[34]", "Params.sketch7_width")
pocket6 = doc.addObject("PartDesign::Pocket", "Pocket005")
body.addObject(pocket6)
pocket6.Profile = sketch7
pocket6.setExpression("Length", "Params.pocket6_length")
doc.recompute()

fillet = doc.addObject("PartDesign::Fillet", "Fillet")
body.addObject(fillet)
fillet.Base = (pocket6, edges_at(pocket6, [
    (-190, 1.5, 100),
    (190, 1.5, 100),
    (190, 1.5, -100),
    (-190, 1.5, -100),
]))
fillet.setExpression("Radius", "Params.fillet_radius")

# Sketch on XZ plane
sketch8 = doc.addObject("Sketcher::SketchObject", "Sketch007")
body.addObject(sketch8)
sketch8.AttachmentSupport = (doc.XZ_Plane, [""])
sketch8.MapMode = "FlatFace"
sketch8.AttachmentOffset = App.Placement(V(0, 0, -3), App.Rotation())
sketch8.addGeometry(Part.Circle(V(-32.5, 65, 0), V(0, 0, 1), 1.8), False)
sketch8.addGeometry(Part.Circle(V(-32.5, 22.5, 0), V(0, 0, 1), 1.8), False)
sketch8.addGeometry(Part.Circle(V(-68.5, 22.5, 0), V(0, 0, 1), 1.8), False)
sketch8.addGeometry(Part.Circle(V(-68.5, 65, 0), V(0, 0, 1), 1.8), False)
sketch8.addConstraint(Sketcher.Constraint("Equal", 0, 1))
sketch8.addConstraint(Sketcher.Constraint("Equal", 1, 2))
sketch8.addConstraint(Sketcher.Constraint("Equal", 2, 3))
sketch8.addConstraint(Sketcher.Constraint("Horizontal", 1, 3, 2, 3))
sketch8.addConstraint(Sketcher.Constraint("Horizontal", 0, 3, 3, 3))
sketch8.addConstraint(Sketcher.Constraint("Vertical", 0, 3, 1, 3))
sketch8.addConstraint(Sketcher.Constraint("Vertical", 2, 3, 3, 3))
sketch8.addConstraint(Sketcher.Constraint("Diameter", 0, 3.5))
sketch8.addConstraint(Sketcher.Constraint("DistanceX", 2, 3, 1, 3, 36.0))
sketch8.addConstraint(Sketcher.Constraint("DistanceY", 1, 3, 0, 3, 42.5))
sketch8.addConstraint(Sketcher.Constraint("DistanceY", -1, 1, 0, 3, 65.0))
sketch8.addConstraint(Sketcher.Constraint("DistanceX", 0, 3, -1, 1, 32.5))
sketch8.setExpression("Constraints[7]", "Params.sketch8_diameter")
pocket7 = doc.addObject("PartDesign::Pocket", "Pocket006")
body.addObject(pocket7)
pocket7.Profile = sketch8
pocket7.setExpression("Length", "Params.pocket7_length")
pocket7.Reversed = True

# Sketch on XZ plane
sketch9 = doc.addObject("Sketcher::SketchObject", "Sketch008")
body.addObject(sketch9)
sketch9.AttachmentSupport = (doc.XZ_Plane, [""])
sketch9.MapMode = "FlatFace"
sketch9.AttachmentOffset = App.Placement(V(0, 0, -3), App.Rotation())
sketch9.addGeometry(Part.Circle(V(70, -15, 0), V(0, 0, 1), 1.8), False)
sketch9.addGeometry(Part.Circle(V(-15, 25, 0), V(0, 0, 1), 1.8), False)
sketch9.addGeometry(Part.Circle(V(70, 65, 0), V(0, 0, 1), 1.8), False)
sketch9.addConstraint(Sketcher.Constraint("Equal", 0, 1))
sketch9.addConstraint(Sketcher.Constraint("Equal", 1, 2))
sketch9.addConstraint(Sketcher.Constraint("Vertical", 0, 3, 2, 3))
sketch9.addConstraint(Sketcher.Constraint("Diameter", 0, 3.5))
sketch9.addConstraint(Sketcher.Constraint("DistanceX", -1, 1, 0, 3, 70.0))
sketch9.addConstraint(Sketcher.Constraint("DistanceY", 0, 3, -1, 1, 15.0))
sketch9.addConstraint(Sketcher.Constraint("DistanceX", 1, 3, -1, 1, 15.0))
sketch9.addConstraint(Sketcher.Constraint("DistanceY", -1, 1, 1, 3, 25.0))
sketch9.addConstraint(Sketcher.Constraint("DistanceY", -1, 1, 2, 3, 65.0))
sketch9.setExpression("Constraints[3]", "Params.sketch9_diameter")
pocket8 = doc.addObject("PartDesign::Pocket", "Pocket007")
body.addObject(pocket8)
pocket8.Profile = sketch9
pocket8.setExpression("Length", "Params.pocket8_length")
pocket8.Reversed = True

doc.recompute()
